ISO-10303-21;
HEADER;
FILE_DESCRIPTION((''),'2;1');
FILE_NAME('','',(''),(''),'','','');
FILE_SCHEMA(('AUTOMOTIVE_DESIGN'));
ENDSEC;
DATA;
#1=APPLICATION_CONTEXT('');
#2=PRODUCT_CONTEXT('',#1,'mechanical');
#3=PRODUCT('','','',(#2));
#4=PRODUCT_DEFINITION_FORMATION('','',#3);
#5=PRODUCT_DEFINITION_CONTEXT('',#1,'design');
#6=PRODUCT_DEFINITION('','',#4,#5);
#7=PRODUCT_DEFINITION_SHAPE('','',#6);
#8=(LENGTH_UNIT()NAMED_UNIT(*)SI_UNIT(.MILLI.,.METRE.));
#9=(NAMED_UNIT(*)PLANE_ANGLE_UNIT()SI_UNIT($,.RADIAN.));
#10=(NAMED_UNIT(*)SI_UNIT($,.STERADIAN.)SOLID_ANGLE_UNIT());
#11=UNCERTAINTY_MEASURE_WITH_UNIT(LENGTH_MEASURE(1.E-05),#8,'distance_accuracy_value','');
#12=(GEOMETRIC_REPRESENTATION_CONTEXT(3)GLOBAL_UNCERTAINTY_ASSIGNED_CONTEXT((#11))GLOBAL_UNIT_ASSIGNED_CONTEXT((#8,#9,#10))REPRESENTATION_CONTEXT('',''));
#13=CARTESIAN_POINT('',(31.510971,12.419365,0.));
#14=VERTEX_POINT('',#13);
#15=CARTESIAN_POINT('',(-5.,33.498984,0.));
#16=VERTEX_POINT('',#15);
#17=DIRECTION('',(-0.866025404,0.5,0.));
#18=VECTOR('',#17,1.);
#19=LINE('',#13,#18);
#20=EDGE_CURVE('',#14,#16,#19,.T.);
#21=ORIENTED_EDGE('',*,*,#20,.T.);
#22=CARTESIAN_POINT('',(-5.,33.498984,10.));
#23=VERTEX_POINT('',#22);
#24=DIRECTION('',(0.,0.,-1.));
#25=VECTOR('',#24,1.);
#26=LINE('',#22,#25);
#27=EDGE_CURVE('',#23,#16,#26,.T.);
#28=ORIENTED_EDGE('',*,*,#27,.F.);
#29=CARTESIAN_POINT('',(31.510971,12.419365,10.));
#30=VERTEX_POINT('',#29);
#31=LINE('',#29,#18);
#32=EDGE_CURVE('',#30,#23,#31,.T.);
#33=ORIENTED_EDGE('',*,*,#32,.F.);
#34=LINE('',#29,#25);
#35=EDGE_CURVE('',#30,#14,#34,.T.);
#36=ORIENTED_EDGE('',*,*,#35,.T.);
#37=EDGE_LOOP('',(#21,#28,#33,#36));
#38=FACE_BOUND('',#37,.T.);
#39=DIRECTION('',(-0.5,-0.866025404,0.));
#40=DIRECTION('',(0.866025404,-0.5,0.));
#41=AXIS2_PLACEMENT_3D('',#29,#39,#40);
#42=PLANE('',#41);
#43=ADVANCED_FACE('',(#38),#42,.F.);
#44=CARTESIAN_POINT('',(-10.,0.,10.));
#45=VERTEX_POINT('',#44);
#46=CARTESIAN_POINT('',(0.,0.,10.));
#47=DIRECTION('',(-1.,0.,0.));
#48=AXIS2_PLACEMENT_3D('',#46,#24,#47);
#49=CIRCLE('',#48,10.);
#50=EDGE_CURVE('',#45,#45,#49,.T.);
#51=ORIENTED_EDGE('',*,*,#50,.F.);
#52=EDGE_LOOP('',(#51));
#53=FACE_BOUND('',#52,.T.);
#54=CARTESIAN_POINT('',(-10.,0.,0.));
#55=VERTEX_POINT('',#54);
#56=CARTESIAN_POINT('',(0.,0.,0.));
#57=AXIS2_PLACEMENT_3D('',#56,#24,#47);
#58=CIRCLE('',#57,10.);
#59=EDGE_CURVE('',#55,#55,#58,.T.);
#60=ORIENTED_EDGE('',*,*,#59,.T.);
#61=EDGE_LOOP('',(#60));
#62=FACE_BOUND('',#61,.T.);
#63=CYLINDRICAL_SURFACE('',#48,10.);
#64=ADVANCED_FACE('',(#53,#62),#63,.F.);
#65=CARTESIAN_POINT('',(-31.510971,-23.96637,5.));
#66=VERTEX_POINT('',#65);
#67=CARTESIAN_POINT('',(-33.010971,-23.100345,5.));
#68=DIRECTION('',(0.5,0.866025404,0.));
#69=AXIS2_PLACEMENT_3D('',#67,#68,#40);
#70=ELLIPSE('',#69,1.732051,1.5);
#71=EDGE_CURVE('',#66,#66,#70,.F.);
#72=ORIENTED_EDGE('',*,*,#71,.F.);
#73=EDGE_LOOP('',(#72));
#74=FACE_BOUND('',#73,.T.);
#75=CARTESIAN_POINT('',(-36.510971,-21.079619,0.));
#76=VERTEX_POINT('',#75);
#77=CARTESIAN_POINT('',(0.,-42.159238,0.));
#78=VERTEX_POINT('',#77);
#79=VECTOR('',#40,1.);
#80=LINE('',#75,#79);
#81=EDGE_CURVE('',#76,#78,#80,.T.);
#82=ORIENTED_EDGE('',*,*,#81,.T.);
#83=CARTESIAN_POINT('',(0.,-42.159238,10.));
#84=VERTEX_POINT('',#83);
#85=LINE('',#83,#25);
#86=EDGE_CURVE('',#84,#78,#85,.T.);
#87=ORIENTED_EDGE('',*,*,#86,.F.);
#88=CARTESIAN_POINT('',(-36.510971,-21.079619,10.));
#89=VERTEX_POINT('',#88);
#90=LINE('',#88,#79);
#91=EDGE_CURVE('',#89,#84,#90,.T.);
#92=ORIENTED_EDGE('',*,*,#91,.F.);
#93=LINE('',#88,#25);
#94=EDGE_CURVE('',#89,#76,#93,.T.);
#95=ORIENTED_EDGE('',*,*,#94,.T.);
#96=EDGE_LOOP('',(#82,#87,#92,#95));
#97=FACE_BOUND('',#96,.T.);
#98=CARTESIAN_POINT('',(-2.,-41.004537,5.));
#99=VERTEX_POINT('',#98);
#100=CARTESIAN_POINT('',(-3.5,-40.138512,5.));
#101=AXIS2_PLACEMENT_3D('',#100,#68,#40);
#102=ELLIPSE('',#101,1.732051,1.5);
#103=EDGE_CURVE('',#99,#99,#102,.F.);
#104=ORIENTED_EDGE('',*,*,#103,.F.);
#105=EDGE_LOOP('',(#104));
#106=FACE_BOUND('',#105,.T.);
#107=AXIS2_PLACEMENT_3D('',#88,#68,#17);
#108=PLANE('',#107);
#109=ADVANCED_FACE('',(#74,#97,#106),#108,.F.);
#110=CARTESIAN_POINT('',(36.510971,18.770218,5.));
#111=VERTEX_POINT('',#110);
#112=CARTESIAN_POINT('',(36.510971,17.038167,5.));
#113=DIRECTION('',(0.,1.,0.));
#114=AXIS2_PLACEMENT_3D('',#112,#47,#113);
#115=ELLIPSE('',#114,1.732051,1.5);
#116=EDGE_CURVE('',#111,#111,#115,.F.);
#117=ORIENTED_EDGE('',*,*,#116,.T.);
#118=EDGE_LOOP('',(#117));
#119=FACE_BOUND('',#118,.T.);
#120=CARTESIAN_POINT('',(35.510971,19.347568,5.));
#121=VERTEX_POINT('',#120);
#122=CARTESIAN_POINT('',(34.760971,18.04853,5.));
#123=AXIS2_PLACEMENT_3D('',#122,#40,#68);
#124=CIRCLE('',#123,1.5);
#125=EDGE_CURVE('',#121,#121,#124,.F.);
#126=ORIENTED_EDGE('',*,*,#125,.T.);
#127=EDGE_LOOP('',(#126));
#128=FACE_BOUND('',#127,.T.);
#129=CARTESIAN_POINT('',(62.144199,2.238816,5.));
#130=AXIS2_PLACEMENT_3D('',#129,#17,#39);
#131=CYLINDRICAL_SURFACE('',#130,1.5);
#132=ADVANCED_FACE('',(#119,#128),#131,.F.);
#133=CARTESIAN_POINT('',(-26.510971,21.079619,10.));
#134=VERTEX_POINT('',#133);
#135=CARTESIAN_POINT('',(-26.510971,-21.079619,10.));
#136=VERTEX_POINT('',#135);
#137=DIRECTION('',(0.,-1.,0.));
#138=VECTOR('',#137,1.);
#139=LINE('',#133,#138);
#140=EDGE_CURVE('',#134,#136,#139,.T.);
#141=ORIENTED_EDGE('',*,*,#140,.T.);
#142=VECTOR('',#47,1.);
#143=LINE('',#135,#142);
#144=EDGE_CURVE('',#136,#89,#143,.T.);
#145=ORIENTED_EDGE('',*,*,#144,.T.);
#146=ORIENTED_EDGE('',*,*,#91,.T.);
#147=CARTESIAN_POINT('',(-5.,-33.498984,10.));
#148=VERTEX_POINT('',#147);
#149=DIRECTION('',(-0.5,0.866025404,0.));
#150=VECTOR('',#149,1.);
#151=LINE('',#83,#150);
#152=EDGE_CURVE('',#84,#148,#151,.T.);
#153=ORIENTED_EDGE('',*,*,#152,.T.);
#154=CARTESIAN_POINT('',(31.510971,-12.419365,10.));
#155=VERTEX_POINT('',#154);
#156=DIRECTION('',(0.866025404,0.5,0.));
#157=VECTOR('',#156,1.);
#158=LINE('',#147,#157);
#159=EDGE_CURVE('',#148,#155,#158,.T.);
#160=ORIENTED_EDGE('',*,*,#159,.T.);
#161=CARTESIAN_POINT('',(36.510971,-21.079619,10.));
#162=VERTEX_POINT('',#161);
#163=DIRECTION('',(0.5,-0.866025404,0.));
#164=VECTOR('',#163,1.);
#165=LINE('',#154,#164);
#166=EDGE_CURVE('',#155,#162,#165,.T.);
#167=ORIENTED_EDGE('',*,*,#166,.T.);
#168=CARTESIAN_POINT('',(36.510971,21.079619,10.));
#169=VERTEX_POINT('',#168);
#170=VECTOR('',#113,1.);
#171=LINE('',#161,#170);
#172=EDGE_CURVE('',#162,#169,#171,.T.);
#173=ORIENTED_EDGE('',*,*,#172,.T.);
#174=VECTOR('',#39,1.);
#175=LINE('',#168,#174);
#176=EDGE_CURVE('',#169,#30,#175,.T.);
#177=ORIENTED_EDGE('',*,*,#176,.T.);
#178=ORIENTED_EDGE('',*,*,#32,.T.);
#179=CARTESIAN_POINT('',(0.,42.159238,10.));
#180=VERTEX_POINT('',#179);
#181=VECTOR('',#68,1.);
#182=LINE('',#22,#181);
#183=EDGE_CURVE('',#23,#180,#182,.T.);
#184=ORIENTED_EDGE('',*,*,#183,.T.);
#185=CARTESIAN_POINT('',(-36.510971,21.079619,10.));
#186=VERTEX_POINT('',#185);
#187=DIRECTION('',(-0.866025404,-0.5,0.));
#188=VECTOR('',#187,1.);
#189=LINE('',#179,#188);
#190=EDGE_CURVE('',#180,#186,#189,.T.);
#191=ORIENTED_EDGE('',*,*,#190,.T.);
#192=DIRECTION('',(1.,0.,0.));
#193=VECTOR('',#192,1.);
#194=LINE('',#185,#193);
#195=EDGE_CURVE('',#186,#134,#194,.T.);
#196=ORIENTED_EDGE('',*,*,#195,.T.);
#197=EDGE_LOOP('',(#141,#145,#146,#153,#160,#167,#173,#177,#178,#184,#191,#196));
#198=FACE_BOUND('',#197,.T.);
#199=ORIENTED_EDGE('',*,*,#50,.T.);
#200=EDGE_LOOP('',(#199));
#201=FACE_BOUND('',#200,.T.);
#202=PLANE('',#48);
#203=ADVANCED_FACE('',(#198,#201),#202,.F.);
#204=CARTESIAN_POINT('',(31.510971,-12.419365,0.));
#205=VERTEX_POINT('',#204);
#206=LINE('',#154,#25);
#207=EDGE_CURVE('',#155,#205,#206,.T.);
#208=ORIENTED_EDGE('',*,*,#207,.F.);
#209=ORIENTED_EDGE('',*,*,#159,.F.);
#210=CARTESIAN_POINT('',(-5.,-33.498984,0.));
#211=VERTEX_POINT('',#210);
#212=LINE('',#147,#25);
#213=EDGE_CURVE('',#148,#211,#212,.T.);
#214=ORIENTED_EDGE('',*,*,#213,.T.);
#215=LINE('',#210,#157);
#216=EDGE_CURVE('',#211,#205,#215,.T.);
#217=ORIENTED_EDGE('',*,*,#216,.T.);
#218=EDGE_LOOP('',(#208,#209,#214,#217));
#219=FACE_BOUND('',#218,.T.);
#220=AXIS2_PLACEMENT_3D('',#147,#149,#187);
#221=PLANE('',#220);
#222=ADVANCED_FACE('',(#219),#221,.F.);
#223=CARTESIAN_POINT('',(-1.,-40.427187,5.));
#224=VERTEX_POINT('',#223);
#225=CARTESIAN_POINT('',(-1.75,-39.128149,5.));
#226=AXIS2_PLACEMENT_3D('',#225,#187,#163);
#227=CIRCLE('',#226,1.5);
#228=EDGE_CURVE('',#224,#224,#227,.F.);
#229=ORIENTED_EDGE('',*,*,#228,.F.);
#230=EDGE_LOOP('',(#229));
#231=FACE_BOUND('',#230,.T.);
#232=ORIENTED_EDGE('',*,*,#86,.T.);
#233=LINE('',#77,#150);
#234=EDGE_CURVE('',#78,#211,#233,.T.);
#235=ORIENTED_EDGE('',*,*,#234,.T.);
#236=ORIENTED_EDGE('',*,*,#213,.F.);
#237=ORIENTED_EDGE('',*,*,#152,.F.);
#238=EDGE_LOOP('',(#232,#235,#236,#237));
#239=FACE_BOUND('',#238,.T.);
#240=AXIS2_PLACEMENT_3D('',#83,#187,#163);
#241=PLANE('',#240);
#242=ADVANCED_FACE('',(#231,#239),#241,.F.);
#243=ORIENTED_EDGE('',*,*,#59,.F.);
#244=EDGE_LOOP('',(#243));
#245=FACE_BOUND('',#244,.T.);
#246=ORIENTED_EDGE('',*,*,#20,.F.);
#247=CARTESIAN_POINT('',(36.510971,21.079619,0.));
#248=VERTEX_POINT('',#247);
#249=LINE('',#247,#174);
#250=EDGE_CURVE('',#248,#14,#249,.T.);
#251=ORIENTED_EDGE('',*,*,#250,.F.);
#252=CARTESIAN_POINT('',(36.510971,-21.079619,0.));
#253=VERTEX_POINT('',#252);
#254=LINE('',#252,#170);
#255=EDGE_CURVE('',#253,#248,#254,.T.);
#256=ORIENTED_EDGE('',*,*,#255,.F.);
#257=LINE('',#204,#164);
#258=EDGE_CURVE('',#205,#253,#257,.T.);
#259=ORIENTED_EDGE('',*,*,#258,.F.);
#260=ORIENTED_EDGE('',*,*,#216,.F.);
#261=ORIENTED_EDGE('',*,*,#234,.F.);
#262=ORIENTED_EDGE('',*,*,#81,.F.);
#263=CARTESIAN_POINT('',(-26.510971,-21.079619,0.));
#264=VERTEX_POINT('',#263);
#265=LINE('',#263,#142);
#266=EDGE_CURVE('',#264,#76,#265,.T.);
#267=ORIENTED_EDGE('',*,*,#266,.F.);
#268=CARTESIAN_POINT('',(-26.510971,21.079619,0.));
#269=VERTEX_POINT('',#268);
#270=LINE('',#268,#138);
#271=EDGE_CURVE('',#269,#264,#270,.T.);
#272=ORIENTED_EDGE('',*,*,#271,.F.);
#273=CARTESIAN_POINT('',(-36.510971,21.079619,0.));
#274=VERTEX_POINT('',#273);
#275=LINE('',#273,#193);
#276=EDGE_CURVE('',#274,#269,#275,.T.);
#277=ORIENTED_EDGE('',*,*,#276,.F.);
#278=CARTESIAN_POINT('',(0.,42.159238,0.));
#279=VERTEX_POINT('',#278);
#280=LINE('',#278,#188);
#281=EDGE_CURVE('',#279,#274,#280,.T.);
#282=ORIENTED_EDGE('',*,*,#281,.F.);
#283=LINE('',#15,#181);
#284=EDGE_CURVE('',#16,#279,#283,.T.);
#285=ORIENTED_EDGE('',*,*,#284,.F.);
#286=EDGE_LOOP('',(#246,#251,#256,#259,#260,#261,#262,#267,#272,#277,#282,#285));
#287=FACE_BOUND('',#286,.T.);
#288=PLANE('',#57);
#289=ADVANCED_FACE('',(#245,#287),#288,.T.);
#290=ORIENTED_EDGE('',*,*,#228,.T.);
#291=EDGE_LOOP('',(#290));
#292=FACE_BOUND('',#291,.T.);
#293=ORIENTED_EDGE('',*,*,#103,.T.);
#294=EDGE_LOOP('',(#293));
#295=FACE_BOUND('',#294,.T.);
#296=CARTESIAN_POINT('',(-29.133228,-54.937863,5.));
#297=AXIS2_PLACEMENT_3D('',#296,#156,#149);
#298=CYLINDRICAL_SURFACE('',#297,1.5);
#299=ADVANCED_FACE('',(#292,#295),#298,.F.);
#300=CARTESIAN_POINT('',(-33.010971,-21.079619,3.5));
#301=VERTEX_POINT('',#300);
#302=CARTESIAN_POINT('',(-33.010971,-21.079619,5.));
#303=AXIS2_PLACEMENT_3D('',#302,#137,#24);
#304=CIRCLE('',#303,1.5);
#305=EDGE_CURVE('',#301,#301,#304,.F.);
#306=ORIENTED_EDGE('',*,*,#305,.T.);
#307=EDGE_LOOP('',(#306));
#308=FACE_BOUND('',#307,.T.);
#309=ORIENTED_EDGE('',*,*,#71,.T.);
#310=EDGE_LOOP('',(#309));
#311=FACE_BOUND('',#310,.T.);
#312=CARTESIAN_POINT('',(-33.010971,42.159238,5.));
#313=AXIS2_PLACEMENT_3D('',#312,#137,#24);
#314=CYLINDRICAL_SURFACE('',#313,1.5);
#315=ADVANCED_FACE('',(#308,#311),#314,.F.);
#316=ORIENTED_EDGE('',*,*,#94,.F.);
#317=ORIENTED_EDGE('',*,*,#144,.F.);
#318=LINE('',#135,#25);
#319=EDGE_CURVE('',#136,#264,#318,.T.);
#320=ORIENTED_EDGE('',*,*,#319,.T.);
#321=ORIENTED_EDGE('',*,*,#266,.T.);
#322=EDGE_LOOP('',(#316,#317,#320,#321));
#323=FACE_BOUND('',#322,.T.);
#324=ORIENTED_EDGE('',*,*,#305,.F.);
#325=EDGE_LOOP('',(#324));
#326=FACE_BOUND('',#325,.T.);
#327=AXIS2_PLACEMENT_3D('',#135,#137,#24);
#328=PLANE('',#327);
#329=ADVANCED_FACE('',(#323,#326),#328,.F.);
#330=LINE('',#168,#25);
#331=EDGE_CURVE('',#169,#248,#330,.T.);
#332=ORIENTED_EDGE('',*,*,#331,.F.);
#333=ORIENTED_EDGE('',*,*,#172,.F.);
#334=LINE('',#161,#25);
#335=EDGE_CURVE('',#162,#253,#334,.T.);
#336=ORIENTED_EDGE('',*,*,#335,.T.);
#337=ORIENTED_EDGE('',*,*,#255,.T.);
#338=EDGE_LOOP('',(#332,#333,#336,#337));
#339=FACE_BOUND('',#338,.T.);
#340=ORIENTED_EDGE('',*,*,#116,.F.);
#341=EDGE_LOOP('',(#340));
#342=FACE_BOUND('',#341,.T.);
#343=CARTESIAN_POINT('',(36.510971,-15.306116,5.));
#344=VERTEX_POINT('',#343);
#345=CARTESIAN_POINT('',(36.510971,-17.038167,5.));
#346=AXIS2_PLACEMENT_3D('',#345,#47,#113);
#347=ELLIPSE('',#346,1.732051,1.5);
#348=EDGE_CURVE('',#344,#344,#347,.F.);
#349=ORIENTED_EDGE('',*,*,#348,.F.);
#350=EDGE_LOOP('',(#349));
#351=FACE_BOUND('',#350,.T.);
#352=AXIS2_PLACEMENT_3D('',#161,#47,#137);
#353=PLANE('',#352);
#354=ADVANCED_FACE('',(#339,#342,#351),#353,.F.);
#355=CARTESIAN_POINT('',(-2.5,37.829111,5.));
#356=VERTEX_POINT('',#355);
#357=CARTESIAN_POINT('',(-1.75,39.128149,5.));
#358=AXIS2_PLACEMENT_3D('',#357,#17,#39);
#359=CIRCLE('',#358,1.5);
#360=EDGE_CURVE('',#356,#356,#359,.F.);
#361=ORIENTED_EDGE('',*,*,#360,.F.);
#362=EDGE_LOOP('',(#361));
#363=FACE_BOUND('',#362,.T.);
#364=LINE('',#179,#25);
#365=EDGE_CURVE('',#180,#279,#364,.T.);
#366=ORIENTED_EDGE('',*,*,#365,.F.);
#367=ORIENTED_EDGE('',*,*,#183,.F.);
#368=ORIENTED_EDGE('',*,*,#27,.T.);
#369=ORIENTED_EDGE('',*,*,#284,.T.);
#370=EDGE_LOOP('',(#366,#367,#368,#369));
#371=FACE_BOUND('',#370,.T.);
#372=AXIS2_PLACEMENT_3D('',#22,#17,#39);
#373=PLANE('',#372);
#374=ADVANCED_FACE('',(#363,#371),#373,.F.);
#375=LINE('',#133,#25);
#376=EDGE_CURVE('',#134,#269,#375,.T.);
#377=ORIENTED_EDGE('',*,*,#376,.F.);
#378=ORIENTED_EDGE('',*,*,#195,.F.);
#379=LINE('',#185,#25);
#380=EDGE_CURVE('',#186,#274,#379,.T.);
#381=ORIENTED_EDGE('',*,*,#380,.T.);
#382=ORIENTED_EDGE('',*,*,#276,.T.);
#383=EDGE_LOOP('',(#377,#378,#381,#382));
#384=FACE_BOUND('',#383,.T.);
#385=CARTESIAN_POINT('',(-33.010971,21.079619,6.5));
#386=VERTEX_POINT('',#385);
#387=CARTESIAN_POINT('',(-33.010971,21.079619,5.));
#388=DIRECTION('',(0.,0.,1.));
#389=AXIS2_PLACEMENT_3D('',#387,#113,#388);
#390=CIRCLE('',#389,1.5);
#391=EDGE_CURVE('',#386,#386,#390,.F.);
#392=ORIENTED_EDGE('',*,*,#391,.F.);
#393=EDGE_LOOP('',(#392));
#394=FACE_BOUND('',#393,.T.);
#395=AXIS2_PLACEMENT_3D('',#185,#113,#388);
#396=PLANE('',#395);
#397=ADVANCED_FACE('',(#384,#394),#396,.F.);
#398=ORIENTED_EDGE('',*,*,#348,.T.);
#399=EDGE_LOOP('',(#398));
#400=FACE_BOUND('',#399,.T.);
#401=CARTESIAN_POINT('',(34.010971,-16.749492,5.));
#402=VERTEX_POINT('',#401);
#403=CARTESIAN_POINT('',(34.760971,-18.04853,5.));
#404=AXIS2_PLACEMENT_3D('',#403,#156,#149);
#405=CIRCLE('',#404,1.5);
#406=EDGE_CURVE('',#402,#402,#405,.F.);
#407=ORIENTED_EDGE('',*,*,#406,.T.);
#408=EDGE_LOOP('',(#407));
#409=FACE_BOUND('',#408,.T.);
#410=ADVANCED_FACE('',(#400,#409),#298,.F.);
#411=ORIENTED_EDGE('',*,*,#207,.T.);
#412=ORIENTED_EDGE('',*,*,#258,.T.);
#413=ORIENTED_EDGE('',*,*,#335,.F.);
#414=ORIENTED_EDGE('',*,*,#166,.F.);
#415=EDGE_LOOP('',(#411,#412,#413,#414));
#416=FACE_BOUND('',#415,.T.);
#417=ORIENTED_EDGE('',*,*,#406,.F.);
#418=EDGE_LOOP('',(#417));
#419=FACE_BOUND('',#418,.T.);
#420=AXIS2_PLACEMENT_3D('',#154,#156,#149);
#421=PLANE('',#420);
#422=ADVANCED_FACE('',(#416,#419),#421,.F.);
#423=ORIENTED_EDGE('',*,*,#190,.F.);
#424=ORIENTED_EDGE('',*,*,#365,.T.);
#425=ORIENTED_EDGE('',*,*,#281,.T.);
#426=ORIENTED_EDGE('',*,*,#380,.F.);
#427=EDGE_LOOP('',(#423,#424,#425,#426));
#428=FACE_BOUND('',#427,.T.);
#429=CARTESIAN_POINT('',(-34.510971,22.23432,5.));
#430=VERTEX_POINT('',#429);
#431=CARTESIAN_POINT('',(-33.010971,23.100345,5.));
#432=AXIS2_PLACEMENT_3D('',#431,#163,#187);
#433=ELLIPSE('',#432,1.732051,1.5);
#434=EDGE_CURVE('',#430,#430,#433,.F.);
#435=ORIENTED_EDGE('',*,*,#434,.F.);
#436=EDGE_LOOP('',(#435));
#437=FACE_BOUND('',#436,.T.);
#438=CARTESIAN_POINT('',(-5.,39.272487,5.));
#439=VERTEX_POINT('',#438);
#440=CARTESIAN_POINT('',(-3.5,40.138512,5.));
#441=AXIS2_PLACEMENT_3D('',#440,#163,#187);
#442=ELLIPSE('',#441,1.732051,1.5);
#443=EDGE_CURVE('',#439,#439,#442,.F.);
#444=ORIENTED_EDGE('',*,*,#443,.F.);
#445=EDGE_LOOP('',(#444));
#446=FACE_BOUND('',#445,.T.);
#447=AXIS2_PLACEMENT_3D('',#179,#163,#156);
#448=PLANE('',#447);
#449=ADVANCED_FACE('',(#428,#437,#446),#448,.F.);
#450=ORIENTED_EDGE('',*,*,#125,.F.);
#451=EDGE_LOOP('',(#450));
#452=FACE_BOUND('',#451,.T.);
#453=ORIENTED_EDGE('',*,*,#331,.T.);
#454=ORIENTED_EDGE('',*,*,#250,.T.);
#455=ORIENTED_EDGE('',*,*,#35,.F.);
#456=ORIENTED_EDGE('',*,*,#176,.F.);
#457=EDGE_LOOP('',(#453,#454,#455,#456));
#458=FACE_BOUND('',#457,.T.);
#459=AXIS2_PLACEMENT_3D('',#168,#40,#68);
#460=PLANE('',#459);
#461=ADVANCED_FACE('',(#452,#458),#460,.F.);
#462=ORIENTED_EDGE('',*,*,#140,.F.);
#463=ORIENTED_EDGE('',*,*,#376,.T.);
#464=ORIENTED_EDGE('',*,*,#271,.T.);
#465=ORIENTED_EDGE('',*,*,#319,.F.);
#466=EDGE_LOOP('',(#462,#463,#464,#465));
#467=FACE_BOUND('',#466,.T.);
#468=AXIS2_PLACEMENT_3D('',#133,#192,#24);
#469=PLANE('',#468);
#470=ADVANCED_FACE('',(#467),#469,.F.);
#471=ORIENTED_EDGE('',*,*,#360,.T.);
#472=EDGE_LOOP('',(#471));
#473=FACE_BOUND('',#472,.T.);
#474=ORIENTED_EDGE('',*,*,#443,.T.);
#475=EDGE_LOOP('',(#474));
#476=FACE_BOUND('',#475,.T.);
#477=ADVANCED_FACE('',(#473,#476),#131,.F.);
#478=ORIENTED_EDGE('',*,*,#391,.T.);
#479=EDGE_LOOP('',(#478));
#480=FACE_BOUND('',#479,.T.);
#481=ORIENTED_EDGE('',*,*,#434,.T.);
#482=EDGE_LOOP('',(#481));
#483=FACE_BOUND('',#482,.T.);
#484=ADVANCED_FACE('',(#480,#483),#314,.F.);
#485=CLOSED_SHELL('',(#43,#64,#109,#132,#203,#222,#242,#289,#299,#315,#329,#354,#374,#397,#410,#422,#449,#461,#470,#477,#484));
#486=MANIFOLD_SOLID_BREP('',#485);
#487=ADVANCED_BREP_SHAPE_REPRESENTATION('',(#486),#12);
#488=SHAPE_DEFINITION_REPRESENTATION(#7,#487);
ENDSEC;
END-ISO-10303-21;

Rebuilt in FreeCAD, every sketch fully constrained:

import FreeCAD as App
import Part
import Sketcher

V = App.Vector
Q = App.Units.Quantity


def add_polygon(sketch, points):
    """Adds a closed chain of lines whose ends are joined by coincident constraints."""
    first, n = sketch.GeometryCount, len(points)
    for a, b in zip(points, points[1:] + points[:1]):
        sketch.addGeometry(Part.LineSegment(App.Vector(*a, 0), App.Vector(*b, 0)), False)
    for i in range(n):
        sketch.addConstraint(Sketcher.Constraint("Coincident", first + i, 2, first + (i + 1) % n, 1))

doc = App.newDocument("Part")
params = doc.addObject("Spreadsheet::Sheet", "Params")
for row, (alias, value) in enumerate([
    ("sketch1_width", "10 mm"),
    ("sketch1_length", "10 mm"),
    ("pad1_length", "10 mm"),
    ("sketch2_diameter", "3 mm"),
    ("pocket1_length", "149.406975 mm"),
    ("sketch3_diameter", "20 mm"),
    ("pocket2_length", "10 mm"),
], start=1):
    params.set(f"A{row}", alias)
    params.set(f"B{row}", "=" + value)
    params.setAlias(f"B{row}", alias)

body = doc.addObject("PartDesign::Body", "Body")

sketch1 = body.newObject("Sketcher::SketchObject", "Sketch")
sketch1.AttachmentSupport = (doc.getObject("XY_Plane"), [""])
sketch1.MapMode = "FlatFace"
add_polygon(sketch1, [(-37, 21), (-27, 21), (-27, -21), (-37, -21), (0, -42), (-5, -33), (32, -12), (37, -21), (37, 21), (32, 12), (-5, 33), (0, 42)])
sketch1.addConstraint([
    Sketcher.Constraint("Horizontal", 0),
    Sketcher.Constraint("Vertical", 1),
    Sketcher.Constraint("Horizontal", 2),
    Sketcher.Constraint("Vertical", 7),
    Sketcher.Constraint("Symmetric", 2, 2, 7, 2, -1, 1),
    Sketcher.Constraint("Symmetric", 3, 2, 10, 2, -1, 1),
    Sketcher.Constraint("Symmetric", 6, 2, 11, 2, -1, 1),
    Sketcher.Constraint("Symmetric", 5, 2, 8, 2, -1),
    Sketcher.Constraint("Symmetric", 4, 2, 9, 2, -1),
    Sketcher.Constraint("PointOnObject", 3, 2, -2),
    Sketcher.Constraint("Perpendicular", 4, 5),
    Sketcher.Constraint("Perpendicular", 5, 6),
    Sketcher.Constraint("Perpendicular", 3, 8),
    Sketcher.Constraint("Perpendicular", 8, 9),
    Sketcher.Constraint("DistanceX", 0, 1, 0, 2, Q("10 mm")),
    Sketcher.Constraint("Angle", 3, Q("-30 deg")),
    Sketcher.Constraint("Distance", 4, Q("10 mm")),
    Sketcher.Constraint("DistanceY", 1, 2, 1, 1, Q("42.159238 mm")),
    Sketcher.Constraint("Distance", 3, Q("42.159238 mm")),
])
sketch1.setExpression("Constraints[26]", "Params.sketch1_width")
sketch1.setExpression("Constraints[28]", "Params.sketch1_length")
pad1 = body.newObject("PartDesign::Pad", "Pad")
pad1.Profile = sketch1
pad1.setExpression("Length", "Params.pad1_length")

sketch2 = body.newObject("Sketcher::SketchObject", "Sketch001")
sketch2.AttachmentSupport = (doc.getObject("XZ_Plane"), [""])
sketch2.MapMode = "FlatFace"
sketch2.AttachmentOffset = App.Placement(V(0, 0, 21.079619), App.Rotation())
sketch2.addGeometry(Part.Circle(V(-33, 5, 0), V(0, 0, 1), 1.5), False)
sketch2.addConstraint([
    Sketcher.Constraint("Diameter", 0, Q("3 mm")),
    Sketcher.Constraint("DistanceY", -1, 1, 0, 3, Q("5 mm")),
    Sketcher.Constraint("DistanceX", 0, 3, -1, 1, Q("33.010971 mm")),
])
sketch2.setExpression("Constraints[0]", "Params.sketch2_diameter")
pocket1 = body.newObject("PartDesign::Pocket", "Pocket")
pocket1.Profile = sketch2
pocket1.setExpression("Length", "Params.pocket1_length")
pocket1.Midplane = True

sketch3 = body.newObject("Sketcher::SketchObject", "Sketch002")
sketch3.AttachmentSupport = (doc.getObject("XY_Plane"), [""])
sketch3.MapMode = "FlatFace"
sketch3.addGeometry(Part.Circle(V(0, 0, 0), V(0, 0, 1), 10), False)
sketch3.addConstraint([
    Sketcher.Constraint("Coincident", 0, 3, -1, 1),
    Sketcher.Constraint("Diameter", 0, Q("20 mm")),
])
sketch3.setExpression("Constraints[1]", "Params.sketch3_diameter")
pocket2 = body.newObject("PartDesign::Pocket", "Pocket001")
pocket2.Profile = sketch3
pocket2.setExpression("Length", "Params.pocket2_length")
pocket2.Reversed = True
doc.recompute()

polarpattern = body.newObject("PartDesign::PolarPattern", "PolarPattern")
polarpattern.Originals = [pocket1]
polarpattern.Axis = (doc.getObject("Z_Axis"), [""])
polarpattern.Angle = 360
polarpattern.Occurrences = 3
body.Tip = polarpattern

doc.recompute()
